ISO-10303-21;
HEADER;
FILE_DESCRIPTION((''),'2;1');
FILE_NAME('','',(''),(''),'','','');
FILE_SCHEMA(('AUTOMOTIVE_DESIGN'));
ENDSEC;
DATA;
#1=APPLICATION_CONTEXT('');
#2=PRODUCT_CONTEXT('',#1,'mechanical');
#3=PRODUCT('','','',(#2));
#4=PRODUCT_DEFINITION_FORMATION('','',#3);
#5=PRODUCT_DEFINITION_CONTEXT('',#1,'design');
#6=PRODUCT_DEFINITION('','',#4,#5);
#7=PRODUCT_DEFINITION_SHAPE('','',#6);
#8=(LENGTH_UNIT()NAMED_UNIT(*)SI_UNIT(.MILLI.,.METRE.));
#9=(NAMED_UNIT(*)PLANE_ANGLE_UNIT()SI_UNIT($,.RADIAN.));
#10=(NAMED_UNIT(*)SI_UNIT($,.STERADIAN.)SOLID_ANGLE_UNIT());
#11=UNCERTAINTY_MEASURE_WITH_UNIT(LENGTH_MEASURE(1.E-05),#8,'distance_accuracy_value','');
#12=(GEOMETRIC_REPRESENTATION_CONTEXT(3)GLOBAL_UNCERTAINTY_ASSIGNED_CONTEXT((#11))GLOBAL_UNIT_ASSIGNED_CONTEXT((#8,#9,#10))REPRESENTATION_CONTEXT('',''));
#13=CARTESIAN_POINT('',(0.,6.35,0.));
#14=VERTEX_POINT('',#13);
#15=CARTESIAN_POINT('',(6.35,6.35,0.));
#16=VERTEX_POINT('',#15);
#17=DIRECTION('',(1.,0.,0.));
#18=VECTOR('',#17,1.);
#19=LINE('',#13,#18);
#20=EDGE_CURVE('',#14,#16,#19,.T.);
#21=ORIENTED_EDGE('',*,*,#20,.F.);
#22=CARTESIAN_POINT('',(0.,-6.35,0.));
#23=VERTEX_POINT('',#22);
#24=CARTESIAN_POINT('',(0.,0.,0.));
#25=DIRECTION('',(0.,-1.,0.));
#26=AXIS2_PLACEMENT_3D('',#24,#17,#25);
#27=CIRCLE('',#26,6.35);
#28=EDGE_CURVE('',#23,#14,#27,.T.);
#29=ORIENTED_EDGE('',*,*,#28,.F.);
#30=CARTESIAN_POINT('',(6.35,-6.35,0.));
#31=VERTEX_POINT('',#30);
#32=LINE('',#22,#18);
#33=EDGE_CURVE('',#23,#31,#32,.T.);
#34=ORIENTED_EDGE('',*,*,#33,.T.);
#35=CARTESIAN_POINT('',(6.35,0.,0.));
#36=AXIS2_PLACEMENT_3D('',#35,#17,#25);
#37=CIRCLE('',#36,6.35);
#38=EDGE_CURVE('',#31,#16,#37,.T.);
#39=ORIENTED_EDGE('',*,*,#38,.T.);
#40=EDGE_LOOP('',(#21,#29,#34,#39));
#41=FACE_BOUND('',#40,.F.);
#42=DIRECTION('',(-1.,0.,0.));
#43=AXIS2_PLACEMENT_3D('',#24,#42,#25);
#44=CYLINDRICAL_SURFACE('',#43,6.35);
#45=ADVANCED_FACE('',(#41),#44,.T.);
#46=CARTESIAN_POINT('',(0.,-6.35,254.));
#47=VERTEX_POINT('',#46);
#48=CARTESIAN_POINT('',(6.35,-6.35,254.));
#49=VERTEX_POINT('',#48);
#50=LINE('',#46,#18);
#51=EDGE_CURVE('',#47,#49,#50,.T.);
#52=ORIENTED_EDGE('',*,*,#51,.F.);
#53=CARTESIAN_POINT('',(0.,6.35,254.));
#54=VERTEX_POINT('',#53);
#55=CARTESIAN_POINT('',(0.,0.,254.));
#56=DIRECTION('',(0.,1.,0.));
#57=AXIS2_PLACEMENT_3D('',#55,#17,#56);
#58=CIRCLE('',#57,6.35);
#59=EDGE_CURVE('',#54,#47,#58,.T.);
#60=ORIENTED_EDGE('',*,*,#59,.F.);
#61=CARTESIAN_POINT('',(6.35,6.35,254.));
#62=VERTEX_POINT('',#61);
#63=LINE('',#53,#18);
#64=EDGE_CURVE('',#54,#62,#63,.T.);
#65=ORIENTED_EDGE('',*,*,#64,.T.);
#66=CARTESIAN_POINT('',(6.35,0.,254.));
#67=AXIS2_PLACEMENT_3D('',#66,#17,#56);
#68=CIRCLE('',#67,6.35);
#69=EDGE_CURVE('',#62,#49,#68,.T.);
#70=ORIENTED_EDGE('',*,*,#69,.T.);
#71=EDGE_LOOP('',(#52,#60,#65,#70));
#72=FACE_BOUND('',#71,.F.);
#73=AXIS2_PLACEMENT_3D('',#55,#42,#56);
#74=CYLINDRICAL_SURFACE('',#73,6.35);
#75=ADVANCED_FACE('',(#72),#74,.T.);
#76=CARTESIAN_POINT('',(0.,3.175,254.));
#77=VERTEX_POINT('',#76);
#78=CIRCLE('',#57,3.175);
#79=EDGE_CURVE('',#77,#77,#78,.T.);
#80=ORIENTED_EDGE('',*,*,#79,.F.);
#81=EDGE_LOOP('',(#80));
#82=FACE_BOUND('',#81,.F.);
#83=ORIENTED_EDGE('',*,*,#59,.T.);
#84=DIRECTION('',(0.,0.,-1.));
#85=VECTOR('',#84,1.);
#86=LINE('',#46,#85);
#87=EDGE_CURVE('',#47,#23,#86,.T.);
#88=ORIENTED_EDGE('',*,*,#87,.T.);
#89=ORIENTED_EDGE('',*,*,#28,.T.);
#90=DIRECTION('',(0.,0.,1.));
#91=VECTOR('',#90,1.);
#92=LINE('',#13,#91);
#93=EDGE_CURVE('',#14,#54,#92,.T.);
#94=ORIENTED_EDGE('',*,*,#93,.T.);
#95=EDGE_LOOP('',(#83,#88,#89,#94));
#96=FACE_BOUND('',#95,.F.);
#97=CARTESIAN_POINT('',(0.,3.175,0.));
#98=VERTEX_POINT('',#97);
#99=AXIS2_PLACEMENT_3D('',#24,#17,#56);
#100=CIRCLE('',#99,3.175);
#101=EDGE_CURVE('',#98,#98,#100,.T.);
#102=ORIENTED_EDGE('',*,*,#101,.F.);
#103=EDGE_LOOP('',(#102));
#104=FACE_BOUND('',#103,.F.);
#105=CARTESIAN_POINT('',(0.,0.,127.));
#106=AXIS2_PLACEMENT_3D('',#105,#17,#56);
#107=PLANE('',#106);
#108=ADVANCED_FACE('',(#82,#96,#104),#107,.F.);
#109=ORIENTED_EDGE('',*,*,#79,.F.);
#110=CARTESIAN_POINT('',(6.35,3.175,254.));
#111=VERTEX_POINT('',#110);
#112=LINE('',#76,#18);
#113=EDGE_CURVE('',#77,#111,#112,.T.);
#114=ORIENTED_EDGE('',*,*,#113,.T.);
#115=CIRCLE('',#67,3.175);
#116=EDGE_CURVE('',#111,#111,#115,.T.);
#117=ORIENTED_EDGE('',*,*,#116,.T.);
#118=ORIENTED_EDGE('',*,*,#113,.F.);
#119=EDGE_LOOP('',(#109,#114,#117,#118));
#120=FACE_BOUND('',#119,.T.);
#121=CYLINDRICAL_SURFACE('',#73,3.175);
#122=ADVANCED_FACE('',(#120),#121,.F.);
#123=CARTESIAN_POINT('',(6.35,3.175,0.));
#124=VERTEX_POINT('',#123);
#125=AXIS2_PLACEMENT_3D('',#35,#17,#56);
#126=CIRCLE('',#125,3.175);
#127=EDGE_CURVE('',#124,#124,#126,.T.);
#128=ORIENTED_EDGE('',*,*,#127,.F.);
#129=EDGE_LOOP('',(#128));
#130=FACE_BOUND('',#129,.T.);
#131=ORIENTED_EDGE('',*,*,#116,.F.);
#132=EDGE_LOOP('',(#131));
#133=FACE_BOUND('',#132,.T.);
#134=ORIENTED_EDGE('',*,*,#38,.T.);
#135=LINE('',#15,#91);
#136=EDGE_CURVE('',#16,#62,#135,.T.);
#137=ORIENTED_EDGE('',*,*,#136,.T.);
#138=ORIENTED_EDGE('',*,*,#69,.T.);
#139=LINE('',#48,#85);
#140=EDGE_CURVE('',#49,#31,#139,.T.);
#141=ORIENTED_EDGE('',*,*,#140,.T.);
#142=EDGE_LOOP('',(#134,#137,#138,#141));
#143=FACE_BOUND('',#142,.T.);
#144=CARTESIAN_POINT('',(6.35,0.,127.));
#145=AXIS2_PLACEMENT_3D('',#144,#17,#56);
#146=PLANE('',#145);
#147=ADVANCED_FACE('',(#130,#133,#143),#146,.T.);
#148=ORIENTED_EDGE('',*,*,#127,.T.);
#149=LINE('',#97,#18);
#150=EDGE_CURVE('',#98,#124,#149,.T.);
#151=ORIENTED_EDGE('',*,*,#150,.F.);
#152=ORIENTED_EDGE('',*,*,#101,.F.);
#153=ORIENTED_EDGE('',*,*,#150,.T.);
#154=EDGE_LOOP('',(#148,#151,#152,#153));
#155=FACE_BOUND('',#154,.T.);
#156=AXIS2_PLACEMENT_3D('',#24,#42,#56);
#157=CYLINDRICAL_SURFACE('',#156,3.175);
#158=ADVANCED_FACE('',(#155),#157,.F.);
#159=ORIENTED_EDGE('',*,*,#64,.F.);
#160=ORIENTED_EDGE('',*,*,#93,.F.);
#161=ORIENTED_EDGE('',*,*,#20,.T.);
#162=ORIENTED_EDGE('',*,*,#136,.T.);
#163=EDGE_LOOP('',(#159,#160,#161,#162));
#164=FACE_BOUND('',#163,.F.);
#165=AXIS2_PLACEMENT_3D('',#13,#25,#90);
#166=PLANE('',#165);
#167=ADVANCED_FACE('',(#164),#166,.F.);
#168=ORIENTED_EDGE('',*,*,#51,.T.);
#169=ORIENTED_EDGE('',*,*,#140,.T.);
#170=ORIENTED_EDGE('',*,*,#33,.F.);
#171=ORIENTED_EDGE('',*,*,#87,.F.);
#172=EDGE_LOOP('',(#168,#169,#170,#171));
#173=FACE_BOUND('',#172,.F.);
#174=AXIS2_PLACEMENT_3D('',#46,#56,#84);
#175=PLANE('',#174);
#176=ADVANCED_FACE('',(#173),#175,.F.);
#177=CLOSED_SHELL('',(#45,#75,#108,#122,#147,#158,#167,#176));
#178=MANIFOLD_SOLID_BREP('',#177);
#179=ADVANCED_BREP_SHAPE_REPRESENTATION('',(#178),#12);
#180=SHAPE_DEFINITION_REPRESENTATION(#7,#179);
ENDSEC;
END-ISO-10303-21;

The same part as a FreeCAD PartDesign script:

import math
import FreeCAD as App
import Part
import Sketcher
from FreeCAD import Vector
Q = App.Units.Quantity

doc = App.newDocument("Part")
body = doc.addObject("PartDesign::Body", "Body")

# Sketch on YZ plane
sketch1 = doc.addObject("Sketcher::SketchObject", "Sketch")
body.addObject(sketch1)
sketch1.AttachmentSupport = (doc.YZ_Plane, [""])
sketch1.MapMode = "FlatFace"
sketch1.addGeometry(Part.LineSegment(Vector(6.3, 0, 0), Vector(6.3, 254, 0)), False)
sketch1.addGeometry(Part.ArcOfCircle(Part.Circle(Vector(0, 254, 0), Vector(0, 0, 1), 6.3), math.radians(0), math.radians(180)), False)
sketch1.addGeometry(Part.LineSegment(Vector(-6.3, 254, 0), Vector(-6.3, 0, 0)), False)
sketch1.addGeometry(Part.ArcOfCircle(Part.Circle(Vector(0, 0, 0), Vector(0, 0, 1), 6.3), math.radians(180), math.radians(360)), False)
sketch1.addGeometry(Part.Circle(Vector(0, 0, 0), Vector(0, 0, 1), 3.2), False)
sketch1.addGeometry(Part.Circle(Vector(0, 254, 0), Vector(0, 0, 1), 3.2), False)
sketch1.addConstraint(Sketcher.Constraint("Tangent", 0, 2, 1, 1))
sketch1.addConstraint(Sketcher.Constraint("Tangent", 1, 2, 2, 1))
sketch1.addConstraint(Sketcher.Constraint("Tangent", 2, 2, 3, 1))
sketch1.addConstraint(Sketcher.Constraint("Tangent", 3, 2, 0, 1))
sketch1.addConstraint(Sketcher.Constraint("Vertical", 0))
sketch1.addConstraint(Sketcher.Constraint("Vertical", 2))
sketch1.addConstraint(Sketcher.Constraint("Coincident", 3, 3, -1, 1))
sketch1.addConstraint(Sketcher.Constraint("Coincident", 4, 3, -1, 1))
sketch1.addConstraint(Sketcher.Constraint("Coincident", 5, 3, 1, 3))
sketch1.addConstraint(Sketcher.Constraint("Equal", 4, 5))
sketch1.addConstraint(Sketcher.Constraint("Diameter", 4, Q("0.25 in")))
sketch1.addConstraint(Sketcher.Constraint("DistanceY", 0, 1, 0, 2, Q("10 in")))
sketch1.addConstraint(Sketcher.Constraint("Radius", 1, Q("0.25 in")))
pad1 = doc.addObject("PartDesign::Pad", "Pad")
body.addObject(pad1)
pad1.Profile = sketch1
pad1.Length = Q("0.25 in")

doc.recompute()
